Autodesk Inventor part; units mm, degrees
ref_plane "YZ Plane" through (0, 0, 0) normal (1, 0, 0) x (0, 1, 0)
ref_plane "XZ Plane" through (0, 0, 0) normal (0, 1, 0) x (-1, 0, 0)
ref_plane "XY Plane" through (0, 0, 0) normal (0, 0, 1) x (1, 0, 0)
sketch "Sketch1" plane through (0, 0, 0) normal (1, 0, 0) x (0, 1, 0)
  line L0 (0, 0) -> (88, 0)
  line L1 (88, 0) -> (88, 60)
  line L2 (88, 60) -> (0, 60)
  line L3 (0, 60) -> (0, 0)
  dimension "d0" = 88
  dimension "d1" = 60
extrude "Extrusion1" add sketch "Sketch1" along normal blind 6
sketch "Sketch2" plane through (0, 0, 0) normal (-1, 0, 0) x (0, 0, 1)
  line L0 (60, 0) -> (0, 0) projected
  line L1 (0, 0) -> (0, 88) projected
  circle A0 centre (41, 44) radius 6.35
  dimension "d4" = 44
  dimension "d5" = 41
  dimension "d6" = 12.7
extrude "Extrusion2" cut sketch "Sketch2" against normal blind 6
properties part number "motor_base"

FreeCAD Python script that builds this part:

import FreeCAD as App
import Part
import Sketcher

V = App.Vector


def add_polygon(sketch, points):
    """Adds a closed chain of lines whose ends are joined by coincident constraints."""
    first, n = sketch.GeometryCount, len(points)
    for a, b in zip(points, points[1:] + points[:1]):
        sketch.addGeometry(Part.LineSegment(App.Vector(*a, 0), App.Vector(*b, 0)), False)
    for i in range(n):
        sketch.addConstraint(Sketcher.Constraint("Coincident", first + i, 2, first + (i + 1) % n, 1))

doc = App.newDocument("Part")
body = doc.addObject("PartDesign::Body", "Body")

sketch1 = body.newObject("Sketcher::SketchObject", "Sketch")
sketch1.AttachmentSupport = (doc.getObject("YZ_Plane"), [""])
sketch1.MapMode = "FlatFace"
add_polygon(sketch1, [(0, 60), (0, 0), (88, 0), (88, 60)])
sketch1.addConstraint([
    Sketcher.Constraint("Vertical", 0),
    Sketcher.Constraint("Horizontal", 1),
    Sketcher.Constraint("Vertical", 2),
    Sketcher.Constraint("Horizontal", 3),
    Sketcher.Constraint("Coincident", 0, 2, -1, 1),
    Sketcher.Constraint("DistanceX", 1, 1, 1, 2, 88.0),
    Sketcher.Constraint("DistanceY", 0, 2, 0, 1, 60.0),
])
pad1 = body.newObject("PartDesign::Pad", "Pad")
pad1.Profile = sketch1
pad1.Length = 6

sketch2 = body.newObject("Sketcher::SketchObject", "Sketch001")
sketch2.AttachmentSupport = (doc.getObject("YZ_Plane"), [""])
sketch2.MapMode = "FlatFace"
sketch2.addGeometry(Part.Circle(V(44, 41, 0), V(0, 0, 1), 6), False)
sketch2.addConstraint([
    Sketcher.Constraint("Diameter", 0, 12.7),
    Sketcher.Constraint("DistanceX", -1, 1, 0, 3, 44.0),
    Sketcher.Constraint("DistanceY", -1, 1, 0, 3, 41.0),
])
pocket1 = body.newObject("PartDesign::Pocket", "Pocket")
pocket1.Profile = sketch2
pocket1.Length = 6
pocket1.Reversed = True

doc.recompute()
